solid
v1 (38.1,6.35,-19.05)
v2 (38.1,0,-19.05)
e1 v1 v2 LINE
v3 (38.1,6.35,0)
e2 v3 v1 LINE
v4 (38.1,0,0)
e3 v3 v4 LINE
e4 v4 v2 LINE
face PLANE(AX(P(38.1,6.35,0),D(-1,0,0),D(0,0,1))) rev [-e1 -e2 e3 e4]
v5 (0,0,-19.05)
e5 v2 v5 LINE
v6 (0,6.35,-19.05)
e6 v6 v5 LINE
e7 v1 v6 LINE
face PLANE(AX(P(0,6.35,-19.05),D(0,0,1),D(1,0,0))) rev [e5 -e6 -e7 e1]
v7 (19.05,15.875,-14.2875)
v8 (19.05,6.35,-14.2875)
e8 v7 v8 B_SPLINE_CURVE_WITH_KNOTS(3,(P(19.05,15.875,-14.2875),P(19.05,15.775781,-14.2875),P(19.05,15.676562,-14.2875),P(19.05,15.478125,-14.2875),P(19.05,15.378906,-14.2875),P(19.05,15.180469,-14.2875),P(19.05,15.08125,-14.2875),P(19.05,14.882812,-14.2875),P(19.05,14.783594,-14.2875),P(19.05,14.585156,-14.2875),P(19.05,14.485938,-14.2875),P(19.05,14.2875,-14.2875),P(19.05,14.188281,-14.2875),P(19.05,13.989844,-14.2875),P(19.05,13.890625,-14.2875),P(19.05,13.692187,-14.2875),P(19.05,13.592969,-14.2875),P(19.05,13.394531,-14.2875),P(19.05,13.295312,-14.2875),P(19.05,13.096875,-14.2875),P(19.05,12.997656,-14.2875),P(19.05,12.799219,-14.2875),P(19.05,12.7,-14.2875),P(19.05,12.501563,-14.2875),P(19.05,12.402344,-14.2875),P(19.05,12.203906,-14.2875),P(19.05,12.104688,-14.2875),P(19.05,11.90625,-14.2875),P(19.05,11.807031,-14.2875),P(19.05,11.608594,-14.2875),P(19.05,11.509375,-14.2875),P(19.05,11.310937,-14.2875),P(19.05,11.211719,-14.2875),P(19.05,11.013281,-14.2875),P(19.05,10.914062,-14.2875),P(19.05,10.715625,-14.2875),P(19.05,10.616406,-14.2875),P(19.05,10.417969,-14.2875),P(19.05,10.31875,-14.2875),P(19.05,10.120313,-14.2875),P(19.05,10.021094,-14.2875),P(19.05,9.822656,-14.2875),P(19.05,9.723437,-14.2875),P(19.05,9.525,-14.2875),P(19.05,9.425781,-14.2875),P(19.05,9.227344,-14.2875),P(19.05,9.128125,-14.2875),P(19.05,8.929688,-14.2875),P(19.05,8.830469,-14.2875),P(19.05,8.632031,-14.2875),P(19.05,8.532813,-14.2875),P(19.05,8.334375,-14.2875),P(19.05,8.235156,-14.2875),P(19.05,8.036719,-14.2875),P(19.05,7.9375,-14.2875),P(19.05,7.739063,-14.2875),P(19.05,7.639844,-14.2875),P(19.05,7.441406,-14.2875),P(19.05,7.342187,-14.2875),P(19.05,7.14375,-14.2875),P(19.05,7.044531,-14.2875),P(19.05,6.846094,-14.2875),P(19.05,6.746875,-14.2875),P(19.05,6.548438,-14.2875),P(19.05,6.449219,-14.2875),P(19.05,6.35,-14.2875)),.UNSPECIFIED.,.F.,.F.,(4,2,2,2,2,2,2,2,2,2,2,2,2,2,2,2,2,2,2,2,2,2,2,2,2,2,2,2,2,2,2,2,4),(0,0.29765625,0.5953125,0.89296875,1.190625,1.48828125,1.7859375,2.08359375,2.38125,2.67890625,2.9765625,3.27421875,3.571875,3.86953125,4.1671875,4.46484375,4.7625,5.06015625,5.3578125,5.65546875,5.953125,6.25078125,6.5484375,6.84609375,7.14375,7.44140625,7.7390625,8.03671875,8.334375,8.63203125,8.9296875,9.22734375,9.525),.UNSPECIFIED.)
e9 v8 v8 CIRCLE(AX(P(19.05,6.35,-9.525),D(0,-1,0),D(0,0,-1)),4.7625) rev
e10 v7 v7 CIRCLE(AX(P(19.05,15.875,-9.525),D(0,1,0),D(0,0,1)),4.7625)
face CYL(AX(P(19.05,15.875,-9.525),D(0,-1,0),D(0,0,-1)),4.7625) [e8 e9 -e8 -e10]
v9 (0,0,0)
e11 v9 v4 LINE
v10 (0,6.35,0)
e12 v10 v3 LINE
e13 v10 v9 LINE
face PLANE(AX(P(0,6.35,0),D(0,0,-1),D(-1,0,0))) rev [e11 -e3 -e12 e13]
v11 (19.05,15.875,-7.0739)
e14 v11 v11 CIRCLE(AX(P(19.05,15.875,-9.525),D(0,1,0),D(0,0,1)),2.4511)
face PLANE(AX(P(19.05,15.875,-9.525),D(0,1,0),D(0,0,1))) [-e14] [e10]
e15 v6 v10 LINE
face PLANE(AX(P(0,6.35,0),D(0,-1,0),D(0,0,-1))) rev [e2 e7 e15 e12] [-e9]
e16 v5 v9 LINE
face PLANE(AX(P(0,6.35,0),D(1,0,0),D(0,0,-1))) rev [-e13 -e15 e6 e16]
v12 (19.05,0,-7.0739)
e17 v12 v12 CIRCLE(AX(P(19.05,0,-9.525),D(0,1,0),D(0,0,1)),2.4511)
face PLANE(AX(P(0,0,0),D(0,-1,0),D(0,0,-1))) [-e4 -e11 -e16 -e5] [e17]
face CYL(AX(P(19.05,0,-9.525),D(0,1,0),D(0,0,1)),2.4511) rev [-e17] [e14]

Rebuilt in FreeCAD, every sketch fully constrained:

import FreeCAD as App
import Part
import Sketcher
Q = App.Units.Quantity


def add_polygon(sketch, points):
    """Adds a closed chain of lines whose ends are joined by coincident constraints."""
    first, n = sketch.GeometryCount, len(points)
    for a, b in zip(points, points[1:] + points[:1]):
        sketch.addGeometry(Part.LineSegment(App.Vector(*a, 0), App.Vector(*b, 0)), False)
    for i in range(n):
        sketch.addConstraint(Sketcher.Constraint("Coincident", first + i, 2, first + (i + 1) % n, 1))

doc = App.newDocument("Part")
body = doc.addObject("PartDesign::Body", "Body")

# Sketch on XZ plane
sketch1 = body.newObject("Sketcher::SketchObject", "Sketch")
sketch1.AttachmentSupport = (doc.getObject("XZ_Plane"), [""])
sketch1.MapMode = "FlatFace"
add_polygon(sketch1, [(0, -19.05), (0, 0), (38.1, 0), (38.1, -19.05)])  # lines 0-3
sketch1.addConstraint([
    Sketcher.Constraint("Vertical", 0),
    Sketcher.Constraint("Horizontal", 1),
    Sketcher.Constraint("Vertical", 2),
    Sketcher.Constraint("Horizontal", 3),
    Sketcher.Constraint("Coincident", 0, 2, -1, 1),
    Sketcher.Constraint("DistanceX", 1, 1, 1, 2, Q("1.5 in")),
    Sketcher.Constraint("DistanceY", 0, 1, 0, 2, Q("0.75 in")),
])
pad1 = body.newObject("PartDesign::Pad", "Pad")
pad1.Profile = sketch1
pad1.Length = Q("0.25 in")
pad1.Reversed = True

# Sketch on XZ plane
sketch2 = body.newObject("Sketcher::SketchObject", "Sketch001")
sketch2.AttachmentSupport = (doc.getObject("XZ_Plane"), [""])
sketch2.MapMode = "FlatFace"
sketch2.AttachmentOffset = App.Placement(App.Vector(0, 0, -0.25 * 25.4), App.Rotation())
sketch2.addGeometry(Part.Circle(App.Vector(19.05, -9.525, 0), App.Vector(0, 0, 1), 4.7625), False)
sketch2.addConstraint([
    Sketcher.Constraint("Diameter", 0, Q("0.375 in")),
    Sketcher.Constraint("DistanceX", -1, 1, 0, 3, Q("0.75 in")),
    Sketcher.Constraint("DistanceY", 0, 3, -1, 1, Q("0.375 in")),
])
pad2 = body.newObject("PartDesign::Pad", "Pad001")
pad2.Profile = sketch2
pad2.Length = Q("0.375 in")
pad2.Reversed = True

# Sketch on XZ plane
sketch3 = body.newObject("Sketcher::SketchObject", "Sketch002")
sketch3.AttachmentSupport = (doc.getObject("XZ_Plane"), [""])
sketch3.MapMode = "FlatFace"
sketch3.AttachmentOffset = App.Placement(App.Vector(0, 0, -0.625 * 25.4), App.Rotation())
sketch3.addGeometry(Part.Circle(App.Vector(19.05, -9.525, 0), App.Vector(0, 0, 1), 2.4511), False)
sketch3.addConstraint([
    Sketcher.Constraint("Diameter", 0, Q("0.193 in")),
    Sketcher.Constraint("DistanceX", -1, 1, 0, 3, Q("0.75 in")),
    Sketcher.Constraint("DistanceY", 0, 3, -1, 1, Q("0.375 in")),
])
pocket1 = body.newObject("PartDesign::Pocket", "Pocket")
pocket1.Profile = sketch3
pocket1.Type = "ThroughAll"
pocket1.Reversed = True

doc.recompute()
